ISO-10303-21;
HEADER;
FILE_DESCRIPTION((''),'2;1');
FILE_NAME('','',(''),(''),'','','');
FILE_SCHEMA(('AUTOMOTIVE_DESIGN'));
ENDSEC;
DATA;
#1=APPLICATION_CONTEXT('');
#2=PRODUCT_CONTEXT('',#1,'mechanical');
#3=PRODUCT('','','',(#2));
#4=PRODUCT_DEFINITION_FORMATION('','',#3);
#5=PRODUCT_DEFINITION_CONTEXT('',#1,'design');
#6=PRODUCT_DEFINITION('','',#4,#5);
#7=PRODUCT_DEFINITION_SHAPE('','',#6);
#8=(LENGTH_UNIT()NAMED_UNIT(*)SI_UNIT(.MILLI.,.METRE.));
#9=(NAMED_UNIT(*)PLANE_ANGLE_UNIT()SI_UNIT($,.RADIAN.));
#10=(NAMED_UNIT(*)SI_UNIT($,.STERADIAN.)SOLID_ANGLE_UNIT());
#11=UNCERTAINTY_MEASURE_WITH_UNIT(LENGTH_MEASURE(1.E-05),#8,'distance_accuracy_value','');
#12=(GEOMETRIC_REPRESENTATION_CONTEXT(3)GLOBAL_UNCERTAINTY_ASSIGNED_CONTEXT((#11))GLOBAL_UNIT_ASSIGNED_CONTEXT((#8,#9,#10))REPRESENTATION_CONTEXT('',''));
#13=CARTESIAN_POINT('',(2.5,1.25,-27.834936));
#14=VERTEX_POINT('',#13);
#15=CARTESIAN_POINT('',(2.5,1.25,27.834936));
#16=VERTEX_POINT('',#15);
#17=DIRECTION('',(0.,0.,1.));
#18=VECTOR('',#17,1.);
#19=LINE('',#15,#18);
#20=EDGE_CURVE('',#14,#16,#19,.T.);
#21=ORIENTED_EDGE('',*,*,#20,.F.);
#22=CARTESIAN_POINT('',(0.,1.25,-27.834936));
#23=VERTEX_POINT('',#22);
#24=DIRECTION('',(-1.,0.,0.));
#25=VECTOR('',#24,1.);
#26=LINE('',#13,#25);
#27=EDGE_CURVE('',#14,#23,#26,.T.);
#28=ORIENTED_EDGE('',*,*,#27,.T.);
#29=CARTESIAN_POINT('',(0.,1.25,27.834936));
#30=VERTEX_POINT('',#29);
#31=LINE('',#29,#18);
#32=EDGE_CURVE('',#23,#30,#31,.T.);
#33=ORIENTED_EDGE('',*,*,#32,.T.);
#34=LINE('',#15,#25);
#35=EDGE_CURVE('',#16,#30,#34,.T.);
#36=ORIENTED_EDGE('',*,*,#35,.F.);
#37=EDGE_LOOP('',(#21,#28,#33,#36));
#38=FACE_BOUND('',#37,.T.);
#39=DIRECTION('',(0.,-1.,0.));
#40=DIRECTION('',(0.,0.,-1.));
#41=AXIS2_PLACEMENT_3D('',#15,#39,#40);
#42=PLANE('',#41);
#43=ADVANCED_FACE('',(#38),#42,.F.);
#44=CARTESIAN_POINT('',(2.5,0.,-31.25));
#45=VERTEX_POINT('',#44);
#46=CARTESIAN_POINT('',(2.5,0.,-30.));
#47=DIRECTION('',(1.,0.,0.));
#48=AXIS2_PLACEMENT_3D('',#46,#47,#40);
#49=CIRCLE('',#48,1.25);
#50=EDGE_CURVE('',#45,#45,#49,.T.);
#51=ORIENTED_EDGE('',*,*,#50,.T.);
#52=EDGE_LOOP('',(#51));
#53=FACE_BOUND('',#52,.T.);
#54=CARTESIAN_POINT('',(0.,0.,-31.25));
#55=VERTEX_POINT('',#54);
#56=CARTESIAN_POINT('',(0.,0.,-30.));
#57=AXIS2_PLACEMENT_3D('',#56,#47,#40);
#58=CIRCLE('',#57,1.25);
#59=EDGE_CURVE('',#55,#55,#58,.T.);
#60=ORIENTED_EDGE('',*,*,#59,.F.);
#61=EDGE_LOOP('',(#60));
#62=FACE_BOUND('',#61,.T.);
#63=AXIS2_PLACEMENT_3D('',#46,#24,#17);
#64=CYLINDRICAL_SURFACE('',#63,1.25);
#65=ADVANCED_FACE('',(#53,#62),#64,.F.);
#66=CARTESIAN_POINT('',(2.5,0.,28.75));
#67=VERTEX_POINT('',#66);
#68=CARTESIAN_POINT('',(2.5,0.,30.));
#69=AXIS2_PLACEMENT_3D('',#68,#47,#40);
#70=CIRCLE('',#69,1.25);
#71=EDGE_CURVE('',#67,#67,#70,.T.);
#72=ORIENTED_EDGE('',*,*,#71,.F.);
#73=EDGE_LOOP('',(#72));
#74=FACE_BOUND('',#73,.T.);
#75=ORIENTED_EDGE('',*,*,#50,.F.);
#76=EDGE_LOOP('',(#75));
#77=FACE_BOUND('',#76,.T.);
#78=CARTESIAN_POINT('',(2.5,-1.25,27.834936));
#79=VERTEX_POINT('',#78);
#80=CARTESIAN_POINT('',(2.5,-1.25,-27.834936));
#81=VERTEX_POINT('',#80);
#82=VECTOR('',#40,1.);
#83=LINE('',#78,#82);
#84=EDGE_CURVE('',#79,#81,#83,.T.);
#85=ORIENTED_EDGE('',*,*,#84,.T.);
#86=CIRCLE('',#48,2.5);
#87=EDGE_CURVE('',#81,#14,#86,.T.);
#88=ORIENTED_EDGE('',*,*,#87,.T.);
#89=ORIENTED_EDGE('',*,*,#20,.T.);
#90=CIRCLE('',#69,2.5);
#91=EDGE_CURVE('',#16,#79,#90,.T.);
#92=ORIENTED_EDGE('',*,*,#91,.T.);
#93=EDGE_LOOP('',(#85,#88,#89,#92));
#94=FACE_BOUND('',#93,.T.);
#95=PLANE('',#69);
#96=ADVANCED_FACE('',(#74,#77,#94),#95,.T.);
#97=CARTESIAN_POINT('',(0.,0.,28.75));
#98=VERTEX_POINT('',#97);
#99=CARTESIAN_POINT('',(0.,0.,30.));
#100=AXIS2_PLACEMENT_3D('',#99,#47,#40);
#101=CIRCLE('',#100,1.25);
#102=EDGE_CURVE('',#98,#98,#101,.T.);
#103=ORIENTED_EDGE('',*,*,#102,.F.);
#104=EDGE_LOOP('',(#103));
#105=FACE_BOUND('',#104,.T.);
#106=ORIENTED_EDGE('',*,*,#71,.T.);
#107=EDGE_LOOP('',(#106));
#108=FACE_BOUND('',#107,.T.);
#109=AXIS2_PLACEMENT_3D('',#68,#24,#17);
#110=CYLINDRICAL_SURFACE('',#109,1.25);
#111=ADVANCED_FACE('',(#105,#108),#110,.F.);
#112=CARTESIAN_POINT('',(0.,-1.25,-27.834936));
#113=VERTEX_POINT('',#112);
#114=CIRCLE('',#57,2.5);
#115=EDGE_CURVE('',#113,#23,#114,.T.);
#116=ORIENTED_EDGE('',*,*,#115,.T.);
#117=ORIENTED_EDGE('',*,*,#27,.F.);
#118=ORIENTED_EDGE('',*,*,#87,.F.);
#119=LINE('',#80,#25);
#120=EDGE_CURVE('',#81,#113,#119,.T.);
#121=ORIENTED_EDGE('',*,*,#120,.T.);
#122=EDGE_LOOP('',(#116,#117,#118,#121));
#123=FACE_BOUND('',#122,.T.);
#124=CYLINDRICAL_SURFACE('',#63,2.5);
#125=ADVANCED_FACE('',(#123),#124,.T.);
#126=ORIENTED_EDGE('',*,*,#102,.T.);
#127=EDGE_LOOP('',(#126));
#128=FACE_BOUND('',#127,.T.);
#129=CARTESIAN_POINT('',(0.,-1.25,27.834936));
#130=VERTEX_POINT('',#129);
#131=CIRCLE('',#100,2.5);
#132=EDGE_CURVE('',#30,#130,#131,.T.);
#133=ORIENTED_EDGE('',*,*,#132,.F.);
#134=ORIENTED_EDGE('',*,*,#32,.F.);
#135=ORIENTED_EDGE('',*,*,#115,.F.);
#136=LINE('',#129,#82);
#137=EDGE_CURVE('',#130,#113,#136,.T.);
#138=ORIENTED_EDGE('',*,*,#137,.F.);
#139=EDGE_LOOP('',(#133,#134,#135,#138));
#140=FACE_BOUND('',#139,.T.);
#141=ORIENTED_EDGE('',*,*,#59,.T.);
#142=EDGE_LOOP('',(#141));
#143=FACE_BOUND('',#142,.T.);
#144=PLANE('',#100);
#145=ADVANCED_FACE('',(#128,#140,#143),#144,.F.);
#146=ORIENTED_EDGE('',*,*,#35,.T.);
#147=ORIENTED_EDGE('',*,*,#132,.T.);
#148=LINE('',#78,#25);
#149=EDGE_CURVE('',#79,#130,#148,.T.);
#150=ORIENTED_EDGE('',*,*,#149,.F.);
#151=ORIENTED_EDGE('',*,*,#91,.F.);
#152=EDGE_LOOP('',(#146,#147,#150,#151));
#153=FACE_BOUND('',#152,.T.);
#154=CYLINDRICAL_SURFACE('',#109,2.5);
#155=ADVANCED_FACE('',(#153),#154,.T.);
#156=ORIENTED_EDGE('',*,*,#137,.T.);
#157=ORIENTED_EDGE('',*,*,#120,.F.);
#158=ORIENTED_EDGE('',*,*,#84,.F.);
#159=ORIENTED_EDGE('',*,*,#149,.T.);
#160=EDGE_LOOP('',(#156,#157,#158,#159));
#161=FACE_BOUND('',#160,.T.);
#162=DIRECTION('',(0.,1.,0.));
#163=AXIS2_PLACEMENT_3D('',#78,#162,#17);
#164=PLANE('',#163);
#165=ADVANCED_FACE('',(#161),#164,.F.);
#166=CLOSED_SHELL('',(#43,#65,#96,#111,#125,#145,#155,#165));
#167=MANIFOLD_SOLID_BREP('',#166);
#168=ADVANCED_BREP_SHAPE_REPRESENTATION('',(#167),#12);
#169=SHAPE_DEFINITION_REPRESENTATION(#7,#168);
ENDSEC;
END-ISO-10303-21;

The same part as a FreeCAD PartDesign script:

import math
import FreeCAD as App
import Part
import Sketcher
from FreeCAD import Vector

doc = App.newDocument("Part")
body = doc.addObject("PartDesign::Body", "Body")

# Sketch on YZ plane
sketch1 = doc.addObject("Sketcher::SketchObject", "Sketch")
body.addObject(sketch1)
sketch1.AttachmentSupport = (doc.YZ_Plane, [""])
sketch1.MapMode = "FlatFace"
sketch1.addGeometry([
    Part.LineSegment(Vector(1.2, -27.8, 0), Vector(1.2, 27.8, 0)),  # 0
    Part.ArcOfCircle(Part.Circle(Vector(0, 30, 0), Vector(0, 0, 1), 2.5), math.radians(-60), math.radians(240)),  # 1
    Part.LineSegment(Vector(-1.2, 27.8, 0), Vector(-1.2, -27.8, 0)),  # 2
    Part.ArcOfCircle(Part.Circle(Vector(0, -30, 0), Vector(0, 0, 1), 2.5), math.radians(120), math.radians(420)),  # 3
    Part.Circle(Vector(0, -30, 0), Vector(0, 0, 1), 1.2),  # 4
    Part.Circle(Vector(0, 30, 0), Vector(0, 0, 1), 1.2),  # 5
], False)
sketch1.addConstraint([
    Sketcher.Constraint("Coincident", 0, 2, 1, 1),
    Sketcher.Constraint("Coincident", 1, 2, 2, 1),
    Sketcher.Constraint("Coincident", 2, 2, 3, 1),
    Sketcher.Constraint("Coincident", 3, 2, 0, 1),
    Sketcher.Constraint("Vertical", 0),
    Sketcher.Constraint("Vertical", 2),
    Sketcher.Constraint("Coincident", 4, 3, 3, 3),
    Sketcher.Constraint("Coincident", 5, 3, 1, 3),
    Sketcher.Constraint("Equal", 1, 3),
    Sketcher.Constraint("Equal", 4, 5),
    Sketcher.Constraint("Symmetric", 1, 3, 3, 3, -1, 1),
    Sketcher.Constraint("Symmetric", 0, 2, 1, 2, -2),
    Sketcher.Constraint("Diameter", 4, 2.5),
    Sketcher.Constraint("Radius", 1, 2.5),
    Sketcher.Constraint("DistanceY", -1, 1, 1, 3, 30.0),
    Sketcher.Constraint("DistanceX", 1, 2, 0, 2, 2.5),
])
pad1 = doc.addObject("PartDesign::Pad", "Pad")
body.addObject(pad1)
pad1.Profile = sketch1
pad1.Length = 2.5

doc.recompute()
